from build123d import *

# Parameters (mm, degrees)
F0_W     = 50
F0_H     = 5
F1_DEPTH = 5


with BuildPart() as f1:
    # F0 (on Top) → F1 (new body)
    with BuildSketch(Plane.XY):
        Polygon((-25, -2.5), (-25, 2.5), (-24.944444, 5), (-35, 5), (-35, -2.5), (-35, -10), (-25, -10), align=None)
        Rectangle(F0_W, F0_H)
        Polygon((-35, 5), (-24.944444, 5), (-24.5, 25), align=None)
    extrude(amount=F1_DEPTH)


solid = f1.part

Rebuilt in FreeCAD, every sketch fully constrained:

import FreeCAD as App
import Part
import Sketcher
from FreeCAD import Vector


def add_polygon(sketch, points):
    """Adds a closed chain of lines whose ends are joined by coincident constraints."""
    first, n = sketch.GeometryCount, len(points)
    for a, b in zip(points, points[1:] + points[:1]):
        sketch.addGeometry(Part.LineSegment(App.Vector(*a, 0), App.Vector(*b, 0)), False)
    for i in range(n):
        sketch.addConstraint(Sketcher.Constraint("Coincident", first + i, 2, first + (i + 1) % n, 1))

doc = App.newDocument("Part")
body = doc.addObject("PartDesign::Body", "Body")

# Sketch on XY plane
sketch1 = doc.addObject("Sketcher::SketchObject", "Sketch")
body.addObject(sketch1)
sketch1.AttachmentSupport = (doc.XY_Plane, [""])
sketch1.MapMode = "FlatFace"
add_polygon(sketch1, [(-25, 2.5), (-24.9, 5), (-24.5, 25), (-35, 5), (-35, -10), (-25, -10), (-25, -2.5), (25, -2.5), (25, 2.5)])  # lines 0-8
sketch1.addConstraint(Sketcher.Constraint("Vertical", 3))
sketch1.addConstraint(Sketcher.Constraint("Horizontal", 4))
sketch1.addConstraint(Sketcher.Constraint("Vertical", 5))
sketch1.addConstraint(Sketcher.Constraint("Horizontal", 6))
sketch1.addConstraint(Sketcher.Constraint("Vertical", 7))
sketch1.addConstraint(Sketcher.Constraint("Horizontal", 8))
sketch1.addConstraint(Sketcher.Constraint("Symmetric", 5, 2, 7, 2, -1, 1))
sketch1.addConstraint(Sketcher.Constraint("Parallel", 0, 1))
sketch1.addConstraint(Sketcher.Constraint("Horizontal", 0, 2, 2, 2))
sketch1.addConstraint(Sketcher.Constraint("Vertical", 5, 2, 8, 2))
sketch1.addConstraint(Sketcher.Constraint("DistanceX", 4, 1, 4, 2, 10.0))
sketch1.addConstraint(Sketcher.Constraint("DistanceX", 6, 1, 6, 2, 50.0))
sketch1.addConstraint(Sketcher.Constraint("DistanceY", 3, 2, 3, 1, 15.0))
sketch1.addConstraint(Sketcher.Constraint("DistanceY", 7, 1, 7, 2, 5.0))
sketch1.addConstraint(Sketcher.Constraint("DistanceY", 5, 1, 5, 2, 7.5))
sketch1.addConstraint(Sketcher.Constraint("DistanceY", -1, 1, 1, 2, 25.0))
sketch1.addConstraint(Sketcher.Constraint("DistanceX", 1, 2, -1, 1, 24.5))
pad1 = doc.addObject("PartDesign::Pad", "Pad")
body.addObject(pad1)
pad1.Profile = sketch1
pad1.Length = 5

doc.recompute()
